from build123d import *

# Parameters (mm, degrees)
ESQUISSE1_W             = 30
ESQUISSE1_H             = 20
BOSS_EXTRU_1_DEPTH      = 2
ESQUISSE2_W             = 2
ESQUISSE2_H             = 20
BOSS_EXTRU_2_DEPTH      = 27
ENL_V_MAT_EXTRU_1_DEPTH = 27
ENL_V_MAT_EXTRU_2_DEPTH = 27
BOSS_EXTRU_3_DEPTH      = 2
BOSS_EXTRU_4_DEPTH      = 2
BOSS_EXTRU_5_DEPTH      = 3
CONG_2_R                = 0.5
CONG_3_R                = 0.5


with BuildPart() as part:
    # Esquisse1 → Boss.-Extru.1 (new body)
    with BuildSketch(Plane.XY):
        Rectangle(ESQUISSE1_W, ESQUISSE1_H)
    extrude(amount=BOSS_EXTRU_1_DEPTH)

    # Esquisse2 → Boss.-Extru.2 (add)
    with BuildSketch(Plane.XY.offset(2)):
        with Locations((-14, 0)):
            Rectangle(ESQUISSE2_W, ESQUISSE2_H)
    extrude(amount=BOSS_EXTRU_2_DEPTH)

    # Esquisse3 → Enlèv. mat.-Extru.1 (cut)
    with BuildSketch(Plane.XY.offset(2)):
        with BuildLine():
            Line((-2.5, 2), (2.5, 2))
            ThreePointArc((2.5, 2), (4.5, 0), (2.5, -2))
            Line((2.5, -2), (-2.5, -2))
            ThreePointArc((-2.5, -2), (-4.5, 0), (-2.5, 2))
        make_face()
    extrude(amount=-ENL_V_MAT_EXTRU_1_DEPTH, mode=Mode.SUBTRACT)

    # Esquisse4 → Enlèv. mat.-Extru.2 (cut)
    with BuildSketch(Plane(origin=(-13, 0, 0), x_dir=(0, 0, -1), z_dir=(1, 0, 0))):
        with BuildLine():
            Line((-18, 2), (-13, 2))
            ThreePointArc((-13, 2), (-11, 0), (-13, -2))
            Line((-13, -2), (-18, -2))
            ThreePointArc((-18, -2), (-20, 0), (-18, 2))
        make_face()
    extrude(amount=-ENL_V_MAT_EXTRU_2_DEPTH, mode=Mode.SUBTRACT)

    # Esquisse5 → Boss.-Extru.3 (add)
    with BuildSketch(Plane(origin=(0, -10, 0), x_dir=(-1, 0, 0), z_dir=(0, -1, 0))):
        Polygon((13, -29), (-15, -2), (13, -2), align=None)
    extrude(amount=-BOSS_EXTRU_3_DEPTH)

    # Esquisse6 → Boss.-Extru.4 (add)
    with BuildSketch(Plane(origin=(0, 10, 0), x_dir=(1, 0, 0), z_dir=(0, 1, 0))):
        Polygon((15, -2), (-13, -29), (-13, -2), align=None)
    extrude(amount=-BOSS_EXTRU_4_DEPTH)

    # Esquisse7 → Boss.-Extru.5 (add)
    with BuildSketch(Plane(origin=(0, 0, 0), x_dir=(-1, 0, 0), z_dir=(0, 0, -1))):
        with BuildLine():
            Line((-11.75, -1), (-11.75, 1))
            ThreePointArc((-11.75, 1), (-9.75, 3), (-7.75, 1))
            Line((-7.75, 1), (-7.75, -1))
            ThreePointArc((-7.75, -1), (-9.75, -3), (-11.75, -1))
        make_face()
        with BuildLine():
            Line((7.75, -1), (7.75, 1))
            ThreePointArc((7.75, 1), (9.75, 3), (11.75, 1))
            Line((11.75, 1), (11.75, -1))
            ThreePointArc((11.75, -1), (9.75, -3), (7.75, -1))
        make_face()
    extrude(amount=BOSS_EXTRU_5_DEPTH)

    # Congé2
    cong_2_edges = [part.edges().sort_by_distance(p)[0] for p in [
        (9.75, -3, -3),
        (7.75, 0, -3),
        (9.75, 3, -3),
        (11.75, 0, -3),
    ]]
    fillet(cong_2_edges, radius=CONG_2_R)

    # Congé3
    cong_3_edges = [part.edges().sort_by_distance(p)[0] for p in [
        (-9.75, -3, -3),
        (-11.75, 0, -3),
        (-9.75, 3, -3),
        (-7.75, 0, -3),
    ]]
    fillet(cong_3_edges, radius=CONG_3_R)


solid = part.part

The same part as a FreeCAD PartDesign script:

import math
import FreeCAD as App
import Part
import Sketcher
from FreeCAD import Vector
Q = App.Units.Quantity


def edges_at(feature, points):
    """Names of the edges that pass closest to the given points."""
    edges = feature.Shape.Edges
    near = lambda p: min(range(len(edges)), key=lambda i: edges[i].distToShape(Part.Vertex(*p))[0])
    return sorted({f"Edge{near(p) + 1}" for p in points})


def add_polygon(sketch, points):
    """Adds a closed chain of lines whose ends are joined by coincident constraints."""
    first, n = sketch.GeometryCount, len(points)
    for a, b in zip(points, points[1:] + points[:1]):
        sketch.addGeometry(Part.LineSegment(App.Vector(*a, 0), App.Vector(*b, 0)), False)
    for i in range(n):
        sketch.addConstraint(Sketcher.Constraint("Coincident", first + i, 2, first + (i + 1) % n, 1))

doc = App.newDocument("Part")
body = doc.addObject("PartDesign::Body", "Body")

sketch1 = body.newObject("Sketcher::SketchObject", "Sketch")
sketch1.AttachmentSupport = (doc.getObject("XY_Plane"), [""])
sketch1.MapMode = "FlatFace"
add_polygon(sketch1, [(-15, 10), (-15, -10), (15, -10), (15, 10)])
sketch1.addConstraint(Sketcher.Constraint("Vertical", 0))
sketch1.addConstraint(Sketcher.Constraint("Horizontal", 1))
sketch1.addConstraint(Sketcher.Constraint("Vertical", 2))
sketch1.addConstraint(Sketcher.Constraint("Horizontal", 3))
sketch1.addConstraint(Sketcher.Constraint("Symmetric", 0, 2, 2, 2, -1, 1))
sketch1.addConstraint(Sketcher.Constraint("DistanceX", 1, 1, 1, 2, Q("30 mm")))
sketch1.addConstraint(Sketcher.Constraint("DistanceY", 0, 2, 0, 1, Q("20 mm")))
pad1 = body.newObject("PartDesign::Pad", "Pad")
pad1.Profile = sketch1
pad1.Length = 2

sketch2 = body.newObject("Sketcher::SketchObject", "Sketch001")
sketch2.AttachmentSupport = (doc.getObject("XY_Plane"), [""])
sketch2.MapMode = "FlatFace"
sketch2.AttachmentOffset = App.Placement(Vector(0, 0, 2), App.Rotation())
add_polygon(sketch2, [(-15, 10), (-15, -10), (-13, -10), (-13, 10)])
sketch2.addConstraint(Sketcher.Constraint("Vertical", 0))
sketch2.addConstraint(Sketcher.Constraint("Horizontal", 1))
sketch2.addConstraint(Sketcher.Constraint("Vertical", 2))
sketch2.addConstraint(Sketcher.Constraint("Horizontal", 3))
sketch2.addConstraint(Sketcher.Constraint("DistanceX", 1, 1, 1, 2, Q("2 mm")))
sketch2.addConstraint(Sketcher.Constraint("DistanceY", 0, 2, 0, 1, Q("20 mm")))
sketch2.addConstraint(Sketcher.Constraint("DistanceX", 0, 2, -1, 1, Q("15 mm")))
sketch2.addConstraint(Sketcher.Constraint("DistanceY", 0, 2, -1, 1, Q("10 mm")))
pad2 = body.newObject("PartDesign::Pad", "Pad001")
pad2.Profile = sketch2
pad2.Length = 27

sketch3 = body.newObject("Sketcher::SketchObject", "Sketch002")
sketch3.AttachmentSupport = (doc.getObject("XY_Plane"), [""])
sketch3.MapMode = "FlatFace"
sketch3.AttachmentOffset = App.Placement(Vector(0, 0, 2), App.Rotation())
sketch3.addGeometry(Part.LineSegment(Vector(2.5, 2, 0), Vector(-2.5, 2, 0)), False)
sketch3.addGeometry(Part.ArcOfCircle(Part.Circle(Vector(-2.5, 0, 0), Vector(0, 0, 1), 2), math.radians(90), math.radians(270)), False)
sketch3.addGeometry(Part.LineSegment(Vector(-2.5, -2, 0), Vector(2.5, -2, 0)), False)
sketch3.addGeometry(Part.ArcOfCircle(Part.Circle(Vector(2.5, 0, 0), Vector(0, 0, 1), 2), math.radians(-90), math.radians(90)), False)
sketch3.addConstraint(Sketcher.Constraint("Tangent", 0, 2, 1, 1))
sketch3.addConstraint(Sketcher.Constraint("Tangent", 1, 2, 2, 1))
sketch3.addConstraint(Sketcher.Constraint("Tangent", 2, 2, 3, 1))
sketch3.addConstraint(Sketcher.Constraint("Tangent", 3, 2, 0, 1))
sketch3.addConstraint(Sketcher.Constraint("Horizontal", 0))
sketch3.addConstraint(Sketcher.Constraint("Horizontal", 2))
sketch3.addConstraint(Sketcher.Constraint("Symmetric", 1, 3, 3, 3, -1, 1))
sketch3.addConstraint(Sketcher.Constraint("Radius", 1, Q("2 mm")))
sketch3.addConstraint(Sketcher.Constraint("DistanceX", 0, 2, 0, 1, Q("5 mm")))
pocket1 = body.newObject("PartDesign::Pocket", "Pocket")
pocket1.Profile = sketch3
pocket1.Length = 27

sketch4 = body.newObject("Sketcher::SketchObject", "Sketch003")
sketch4.AttachmentSupport = (doc.getObject("YZ_Plane"), [""])
sketch4.MapMode = "FlatFace"
sketch4.AttachmentOffset = App.Placement(Vector(0, 0, -13), App.Rotation())
sketch4.addGeometry(Part.LineSegment(Vector(2, 13, 0), Vector(2, 18, 0)), False)
sketch4.addGeometry(Part.ArcOfCircle(Part.Circle(Vector(0, 18, 0), Vector(0, 0, 1), 2), math.radians(0), math.radians(180)), False)
sketch4.addGeometry(Part.LineSegment(Vector(-2, 18, 0), Vector(-2, 13, 0)), False)
sketch4.addGeometry(Part.ArcOfCircle(Part.Circle(Vector(0, 13, 0), Vector(0, 0, 1), 2), math.radians(180), math.radians(360)), False)
sketch4.addConstraint(Sketcher.Constraint("Tangent", 0, 2, 1, 1))
sketch4.addConstraint(Sketcher.Constraint("Tangent", 1, 2, 2, 1))
sketch4.addConstraint(Sketcher.Constraint("Tangent", 2, 2, 3, 1))
sketch4.addConstraint(Sketcher.Constraint("Tangent", 3, 2, 0, 1))
sketch4.addConstraint(Sketcher.Constraint("Vertical", 0))
sketch4.addConstraint(Sketcher.Constraint("Vertical", 2))
sketch4.addConstraint(Sketcher.Constraint("PointOnObject", 1, 3, -2))
sketch4.addConstraint(Sketcher.Constraint("Radius", 1, Q("2 mm")))
sketch4.addConstraint(Sketcher.Constraint("DistanceY", 0, 1, 0, 2, Q("5 mm")))
sketch4.addConstraint(Sketcher.Constraint("DistanceY", -1, 1, 1, 3, Q("18 mm")))
pocket2 = body.newObject("PartDesign::Pocket", "Pocket001")
pocket2.Profile = sketch4
pocket2.Length = 27

sketch5 = body.newObject("Sketcher::SketchObject", "Sketch004")
sketch5.AttachmentSupport = (doc.getObject("XZ_Plane"), [""])
sketch5.MapMode = "FlatFace"
sketch5.AttachmentOffset = App.Placement(Vector(0, 0, 10), App.Rotation())
add_polygon(sketch5, [(15, 2), (-13, 29), (-13, 2)])
sketch5.addConstraint(Sketcher.Constraint("Vertical", 1))
sketch5.addConstraint(Sketcher.Constraint("Horizontal", 2))
sketch5.addConstraint(Sketcher.Constraint("DistanceX", 2, 1, 2, 2, Q("28 mm")))
sketch5.addConstraint(Sketcher.Constraint("DistanceY", 1, 2, 1, 1, Q("27 mm")))
sketch5.addConstraint(Sketcher.Constraint("DistanceX", 0, 2, -1, 1, Q("13 mm")))
sketch5.addConstraint(Sketcher.Constraint("DistanceY", -1, 1, 0, 2, Q("29 mm")))
pad3 = body.newObject("PartDesign::Pad", "Pad002")
pad3.Profile = sketch5
pad3.Length = 2
pad3.Reversed = True

sketch6 = body.newObject("Sketcher::SketchObject", "Sketch005")
sketch6.AttachmentSupport = (doc.getObject("XZ_Plane"), [""])
sketch6.MapMode = "FlatFace"
sketch6.AttachmentOffset = App.Placement(Vector(0, 0, -10), App.Rotation())
add_polygon(sketch6, [(-13, 29), (15, 2), (-13, 2)])
sketch6.addConstraint(Sketcher.Constraint("Horizontal", 1))
sketch6.addConstraint(Sketcher.Constraint("Vertical", 2))
sketch6.addConstraint(Sketcher.Constraint("DistanceX", 1, 2, 1, 1, Q("28 mm")))
sketch6.addConstraint(Sketcher.Constraint("DistanceY", 2, 1, 2, 2, Q("27 mm")))
sketch6.addConstraint(Sketcher.Constraint("DistanceX", -1, 1, 0, 2, Q("15 mm")))
sketch6.addConstraint(Sketcher.Constraint("DistanceY", -1, 1, 0, 2, Q("2 mm")))
pad4 = body.newObject("PartDesign::Pad", "Pad003")
pad4.Profile = sketch6
pad4.Length = 2

sketch7 = body.newObject("Sketcher::SketchObject", "Sketch006")
sketch7.AttachmentSupport = (doc.getObject("XY_Plane"), [""])
sketch7.MapMode = "FlatFace"
sketch7.addGeometry(Part.LineSegment(Vector(11.75, 1, 0), Vector(11.75, -1, 0)), False)
sketch7.addGeometry(Part.ArcOfCircle(Part.Circle(Vector(9.75, -1, 0), Vector(0, 0, 1), 2), math.radians(180), math.radians(360)), False)
sketch7.addGeometry(Part.LineSegment(Vector(7.75, -1, 0), Vector(7.75, 1, 0)), False)
sketch7.addGeometry(Part.ArcOfCircle(Part.Circle(Vector(9.75, 1, 0), Vector(0, 0, 1), 2), math.radians(0), math.radians(180)), False)
sketch7.addGeometry(Part.LineSegment(Vector(-7.75, 1, 0), Vector(-7.75, -1, 0)), False)
sketch7.addGeometry(Part.ArcOfCircle(Part.Circle(Vector(-9.75, -1, 0), Vector(0, 0, 1), 2), math.radians(180), math.radians(360)), False)
sketch7.addGeometry(Part.LineSegment(Vector(-11.75, -1, 0), Vector(-11.75, 1, 0)), False)
sketch7.addGeometry(Part.ArcOfCircle(Part.Circle(Vector(-9.75, 1, 0), Vector(0, 0, 1), 2), math.radians(0), math.radians(180)), False)
sketch7.addConstraint(Sketcher.Constraint("Tangent", 0, 2, 1, 2))
sketch7.addConstraint(Sketcher.Constraint("Tangent", 1, 1, 2, 1))
sketch7.addConstraint(Sketcher.Constraint("Tangent", 2, 2, 3, 2))
sketch7.addConstraint(Sketcher.Constraint("Tangent", 3, 1, 0, 1))
sketch7.addConstraint(Sketcher.Constraint("Tangent", 4, 2, 5, 2))
sketch7.addConstraint(Sketcher.Constraint("Tangent", 5, 1, 6, 1))
sketch7.addConstraint(Sketcher.Constraint("Tangent", 6, 2, 7, 2))
sketch7.addConstraint(Sketcher.Constraint("Tangent", 7, 1, 4, 1))
sketch7.addConstraint(Sketcher.Constraint("Vertical", 0))
sketch7.addConstraint(Sketcher.Constraint("Vertical", 2))
sketch7.addConstraint(Sketcher.Constraint("Vertical", 4))
sketch7.addConstraint(Sketcher.Constraint("Vertical", 6))
sketch7.addConstraint(Sketcher.Constraint("Equal", 3, 5))
sketch7.addConstraint(Sketcher.Constraint("Symmetric", 3, 3, 5, 3, -1, 1))
sketch7.addConstraint(Sketcher.Constraint("Horizontal", 1, 3, 5, 3))
sketch7.addConstraint(Sketcher.Constraint("Horizontal", 3, 3, 7, 3))
sketch7.addConstraint(Sketcher.Constraint("Radius", 1, Q("2 mm")))
sketch7.addConstraint(Sketcher.Constraint("DistanceY", 0, 2, 0, 1, Q("2 mm")))
sketch7.addConstraint(Sketcher.Constraint("DistanceX", 5, 3, 1, 3, Q("19.5 mm")))
pad5 = body.newObject("PartDesign::Pad", "Pad004")
pad5.Profile = sketch7
pad5.Length = 3
pad5.Reversed = True
doc.recompute()

fillet = body.newObject("PartDesign::Fillet", "Fillet")
fillet.Base = (pad5, edges_at(pad5, [
    (9.75, -3, -3),
    (7.75, 0, -3),
    (9.75, 3, -3),
    (11.75, 0, -3),
]))
fillet.Radius = 0.5
doc.recompute()

fillet2 = body.newObject("PartDesign::Fillet", "Fillet001")
fillet2.Base = (fillet, edges_at(fillet, [
    (-9.75, -3, -3),
    (-11.75, 0, -3),
    (-9.75, 3, -3),
    (-7.75, 0, -3),
]))
fillet2.Radius = 0.5

doc.recompute()
